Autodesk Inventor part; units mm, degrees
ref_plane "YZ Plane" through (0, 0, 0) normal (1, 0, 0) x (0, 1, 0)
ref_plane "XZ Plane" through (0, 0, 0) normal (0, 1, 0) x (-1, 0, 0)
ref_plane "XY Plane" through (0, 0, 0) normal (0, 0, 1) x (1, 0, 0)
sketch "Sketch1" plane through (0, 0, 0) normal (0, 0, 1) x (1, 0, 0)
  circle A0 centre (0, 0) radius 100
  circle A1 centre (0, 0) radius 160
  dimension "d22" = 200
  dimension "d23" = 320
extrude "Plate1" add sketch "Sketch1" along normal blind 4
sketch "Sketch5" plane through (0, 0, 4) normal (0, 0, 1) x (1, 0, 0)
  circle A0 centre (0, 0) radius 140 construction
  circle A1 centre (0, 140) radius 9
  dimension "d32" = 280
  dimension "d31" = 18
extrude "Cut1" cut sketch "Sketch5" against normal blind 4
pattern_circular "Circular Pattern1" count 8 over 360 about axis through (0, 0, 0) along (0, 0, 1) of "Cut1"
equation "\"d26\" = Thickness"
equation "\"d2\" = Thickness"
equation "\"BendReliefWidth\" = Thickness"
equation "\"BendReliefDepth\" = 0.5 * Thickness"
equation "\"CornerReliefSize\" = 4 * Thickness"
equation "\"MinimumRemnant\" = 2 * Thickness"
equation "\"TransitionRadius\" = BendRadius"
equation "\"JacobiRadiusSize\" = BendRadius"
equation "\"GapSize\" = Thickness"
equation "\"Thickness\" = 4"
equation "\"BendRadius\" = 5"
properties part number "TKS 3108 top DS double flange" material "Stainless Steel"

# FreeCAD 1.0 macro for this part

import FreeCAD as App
import Part
import Sketcher
Q = App.Units.Quantity

doc = App.newDocument("Part")
body = doc.addObject("PartDesign::Body", "Body")

sketch1 = body.newObject("Sketcher::SketchObject", "Sketch")
sketch1.AttachmentSupport = (doc.getObject("XY_Plane"), [""])
sketch1.MapMode = "FlatFace"
sketch1.addGeometry([
    Part.Circle(App.Vector(0, 0, 0), App.Vector(0, 0, 1), 160),
    Part.Circle(App.Vector(0, 0, 0), App.Vector(0, 0, 1), 100),
], False)
sketch1.addConstraint([
    Sketcher.Constraint("Coincident", 0, 3, -1, 1),
    Sketcher.Constraint("Coincident", 1, 3, -1, 1),
    Sketcher.Constraint("Diameter", 0, Q("320 mm")),
    Sketcher.Constraint("Diameter", 1, Q("200 mm")),
])
pad1 = body.newObject("PartDesign::Pad", "Pad")
pad1.Profile = sketch1
pad1.Length = 4

sketch2 = body.newObject("Sketcher::SketchObject", "Sketch001")
sketch2.AttachmentSupport = (doc.getObject("XY_Plane"), [""])
sketch2.MapMode = "FlatFace"
sketch2.AttachmentOffset = App.Placement(App.Vector(0, 0, 4), App.Rotation())
sketch2.addGeometry(Part.Circle(App.Vector(0, 140, 0), App.Vector(0, 0, 1), 9), False)
sketch2.addConstraint([
    Sketcher.Constraint("PointOnObject", 0, 3, -2),
    Sketcher.Constraint("Diameter", 0, Q("18 mm")),
    Sketcher.Constraint("DistanceY", -1, 1, 0, 3, Q("140 mm")),
])
pocket1 = body.newObject("PartDesign::Pocket", "Pocket")
pocket1.Profile = sketch2
pocket1.Length = 4
doc.recompute()

polarpattern = body.newObject("PartDesign::PolarPattern", "PolarPattern")
polarpattern.Originals = [pocket1]
polarpattern.Axis = (doc.getObject("Z_Axis"), [""])
polarpattern.Angle = 360
polarpattern.Occurrences = 8
body.Tip = polarpattern

doc.recompute()
